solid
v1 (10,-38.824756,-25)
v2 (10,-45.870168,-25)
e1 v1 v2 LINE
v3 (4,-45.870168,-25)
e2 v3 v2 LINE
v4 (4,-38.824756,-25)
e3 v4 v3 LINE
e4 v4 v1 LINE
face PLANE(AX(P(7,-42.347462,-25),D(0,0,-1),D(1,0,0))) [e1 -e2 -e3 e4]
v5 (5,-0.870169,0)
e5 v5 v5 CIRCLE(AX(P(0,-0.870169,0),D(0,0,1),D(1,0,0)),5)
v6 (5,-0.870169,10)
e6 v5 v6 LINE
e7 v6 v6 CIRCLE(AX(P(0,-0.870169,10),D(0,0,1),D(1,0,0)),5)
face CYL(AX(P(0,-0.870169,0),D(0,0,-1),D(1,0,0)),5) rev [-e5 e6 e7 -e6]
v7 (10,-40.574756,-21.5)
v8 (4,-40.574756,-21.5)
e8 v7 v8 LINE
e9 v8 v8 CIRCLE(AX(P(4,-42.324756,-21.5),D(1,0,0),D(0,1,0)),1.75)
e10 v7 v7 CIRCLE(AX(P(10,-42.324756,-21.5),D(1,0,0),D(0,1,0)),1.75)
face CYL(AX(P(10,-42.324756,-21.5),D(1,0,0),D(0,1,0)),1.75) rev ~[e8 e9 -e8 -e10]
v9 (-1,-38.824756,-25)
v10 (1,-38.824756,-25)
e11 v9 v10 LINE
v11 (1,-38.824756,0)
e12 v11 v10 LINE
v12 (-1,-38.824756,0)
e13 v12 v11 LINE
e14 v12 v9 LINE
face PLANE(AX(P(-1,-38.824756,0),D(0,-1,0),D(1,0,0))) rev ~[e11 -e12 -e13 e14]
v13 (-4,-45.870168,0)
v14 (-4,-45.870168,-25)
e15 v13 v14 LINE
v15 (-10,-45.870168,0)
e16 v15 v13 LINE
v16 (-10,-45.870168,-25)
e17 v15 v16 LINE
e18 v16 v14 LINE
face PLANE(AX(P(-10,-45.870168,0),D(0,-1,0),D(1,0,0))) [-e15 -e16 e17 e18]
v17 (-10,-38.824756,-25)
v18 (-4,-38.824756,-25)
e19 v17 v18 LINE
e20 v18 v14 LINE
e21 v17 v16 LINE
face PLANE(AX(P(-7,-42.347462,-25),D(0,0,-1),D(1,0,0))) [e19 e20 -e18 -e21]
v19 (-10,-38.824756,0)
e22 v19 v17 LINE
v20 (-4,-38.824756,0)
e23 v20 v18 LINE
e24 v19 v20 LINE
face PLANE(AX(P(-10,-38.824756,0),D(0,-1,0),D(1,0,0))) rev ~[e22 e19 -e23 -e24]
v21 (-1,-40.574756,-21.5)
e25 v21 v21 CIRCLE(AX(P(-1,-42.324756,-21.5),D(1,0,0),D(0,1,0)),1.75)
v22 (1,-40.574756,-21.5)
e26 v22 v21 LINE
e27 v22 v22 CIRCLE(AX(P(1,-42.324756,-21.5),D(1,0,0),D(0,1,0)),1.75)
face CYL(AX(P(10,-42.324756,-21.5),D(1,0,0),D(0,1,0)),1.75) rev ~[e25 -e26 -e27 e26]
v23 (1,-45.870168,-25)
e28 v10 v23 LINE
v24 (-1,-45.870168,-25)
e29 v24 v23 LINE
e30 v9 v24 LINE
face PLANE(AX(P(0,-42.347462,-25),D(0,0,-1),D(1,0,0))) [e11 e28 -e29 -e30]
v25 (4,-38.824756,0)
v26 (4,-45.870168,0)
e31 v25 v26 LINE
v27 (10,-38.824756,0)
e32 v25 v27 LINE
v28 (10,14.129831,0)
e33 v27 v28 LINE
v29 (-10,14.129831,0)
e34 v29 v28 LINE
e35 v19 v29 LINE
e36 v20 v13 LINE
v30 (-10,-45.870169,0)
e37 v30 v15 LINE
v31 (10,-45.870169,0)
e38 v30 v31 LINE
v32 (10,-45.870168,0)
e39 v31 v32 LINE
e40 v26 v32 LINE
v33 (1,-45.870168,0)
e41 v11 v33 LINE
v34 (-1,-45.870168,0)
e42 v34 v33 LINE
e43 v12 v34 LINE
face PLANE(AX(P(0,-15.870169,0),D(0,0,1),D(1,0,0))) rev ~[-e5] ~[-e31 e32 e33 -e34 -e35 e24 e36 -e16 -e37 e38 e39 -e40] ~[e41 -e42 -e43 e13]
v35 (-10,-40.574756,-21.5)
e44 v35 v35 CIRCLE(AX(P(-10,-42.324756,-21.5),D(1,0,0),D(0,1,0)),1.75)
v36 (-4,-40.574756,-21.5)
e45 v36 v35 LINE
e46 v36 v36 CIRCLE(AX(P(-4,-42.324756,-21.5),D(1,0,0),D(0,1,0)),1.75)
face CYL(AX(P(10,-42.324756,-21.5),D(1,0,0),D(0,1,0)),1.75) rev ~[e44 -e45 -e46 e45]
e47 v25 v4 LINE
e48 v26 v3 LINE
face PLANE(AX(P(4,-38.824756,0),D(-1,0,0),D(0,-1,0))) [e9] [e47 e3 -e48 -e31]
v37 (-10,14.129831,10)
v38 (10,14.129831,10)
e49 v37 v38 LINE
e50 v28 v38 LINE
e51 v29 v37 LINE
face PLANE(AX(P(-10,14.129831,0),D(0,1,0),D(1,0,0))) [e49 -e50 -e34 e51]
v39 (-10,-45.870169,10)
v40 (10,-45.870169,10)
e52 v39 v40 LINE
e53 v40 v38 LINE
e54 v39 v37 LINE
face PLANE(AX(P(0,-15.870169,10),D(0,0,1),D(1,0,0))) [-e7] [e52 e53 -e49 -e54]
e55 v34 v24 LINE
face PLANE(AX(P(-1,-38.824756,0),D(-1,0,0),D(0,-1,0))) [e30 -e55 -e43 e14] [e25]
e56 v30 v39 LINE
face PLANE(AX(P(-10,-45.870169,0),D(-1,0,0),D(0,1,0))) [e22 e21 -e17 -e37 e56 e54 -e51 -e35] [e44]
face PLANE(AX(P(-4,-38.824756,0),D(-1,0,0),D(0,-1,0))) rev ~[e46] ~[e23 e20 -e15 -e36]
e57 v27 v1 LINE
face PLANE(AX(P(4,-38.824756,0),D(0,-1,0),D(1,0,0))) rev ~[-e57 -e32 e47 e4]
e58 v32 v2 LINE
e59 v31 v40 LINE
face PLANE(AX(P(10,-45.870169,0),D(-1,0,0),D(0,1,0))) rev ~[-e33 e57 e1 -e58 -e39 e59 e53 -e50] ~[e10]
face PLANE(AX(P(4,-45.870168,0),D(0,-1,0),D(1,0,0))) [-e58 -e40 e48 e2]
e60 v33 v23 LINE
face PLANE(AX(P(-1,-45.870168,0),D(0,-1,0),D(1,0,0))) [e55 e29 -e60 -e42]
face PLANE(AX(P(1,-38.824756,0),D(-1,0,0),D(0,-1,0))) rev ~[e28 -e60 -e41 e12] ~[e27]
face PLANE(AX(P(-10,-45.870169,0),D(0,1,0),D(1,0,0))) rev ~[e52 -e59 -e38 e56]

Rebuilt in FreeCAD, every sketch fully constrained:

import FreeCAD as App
import Part
import Sketcher
Q = App.Units.Quantity


def add_polygon(sketch, points):
    """Adds a closed chain of lines whose ends are joined by coincident constraints."""
    first, n = sketch.GeometryCount, len(points)
    for a, b in zip(points, points[1:] + points[:1]):
        sketch.addGeometry(Part.LineSegment(App.Vector(*a, 0), App.Vector(*b, 0)), False)
    for i in range(n):
        sketch.addConstraint(Sketcher.Constraint("Coincident", first + i, 2, first + (i + 1) % n, 1))

doc = App.newDocument("Part")
params = doc.addObject("Spreadsheet::Sheet", "Params")
for row, (alias, value) in enumerate([
    ("sketch1_diameter", "10 mm"),
    ("sketch1_width", "20 mm"),
    ("sketch1_height", "60 mm"),
    ("pad1_length", "10 mm"),
    ("sketch2_width", "2 mm"),
    ("sketch2_width2", "6 mm"),
    ("pad2_length", "25 mm"),
    ("sketch3_diameter", "3.5 mm"),
    ("pocket1_length", "25 mm"),
], start=1):
    params.set(f"A{row}", alias)
    params.set(f"B{row}", "=" + value)
    params.setAlias(f"B{row}", alias)

body = doc.addObject("PartDesign::Body", "Body")

sketch1 = body.newObject("Sketcher::SketchObject", "Sketch")
sketch1.AttachmentSupport = (doc.getObject("XY_Plane"), [""])
sketch1.MapMode = "FlatFace"
add_polygon(sketch1, [(-10, 14), (-10, -46), (10, -46), (10, 14)])
sketch1.addGeometry(Part.Circle(App.Vector(0, -1, 0), App.Vector(0, 0, 1), 5), False)
sketch1.addConstraint(Sketcher.Constraint("Vertical", 0))
sketch1.addConstraint(Sketcher.Constraint("Horizontal", 1))
sketch1.addConstraint(Sketcher.Constraint("Vertical", 2))
sketch1.addConstraint(Sketcher.Constraint("Horizontal", 3))
sketch1.addConstraint(Sketcher.Constraint("PointOnObject", 4, 3, -2))
sketch1.addConstraint(Sketcher.Constraint("Diameter", 4, Q("10 mm")))
sketch1.addConstraint(Sketcher.Constraint("DistanceX", 1, 1, 1, 2, Q("20 mm")))
sketch1.addConstraint(Sketcher.Constraint("DistanceY", 0, 2, 0, 1, Q("60 mm")))
sketch1.addConstraint(Sketcher.Constraint("DistanceX", 0, 2, -1, 1, Q("10 mm")))
sketch1.addConstraint(Sketcher.Constraint("DistanceY", 0, 2, 4, 3, Q("45 mm")))
sketch1.addConstraint(Sketcher.Constraint("DistanceY", 4, 3, -1, 1, Q("0.870169 mm")))
sketch1.setExpression("Constraints[9]", "Params.sketch1_diameter")
sketch1.setExpression("Constraints[10]", "Params.sketch1_width")
sketch1.setExpression("Constraints[11]", "Params.sketch1_height")
pad1 = body.newObject("PartDesign::Pad", "Pad")
pad1.Profile = sketch1
pad1.setExpression("Length", "Params.pad1_length")

sketch2 = body.newObject("Sketcher::SketchObject", "Sketch001")
sketch2.AttachmentSupport = (doc.getObject("XY_Plane"), [""])
sketch2.MapMode = "FlatFace"
add_polygon(sketch2, [(-1, -45.9), (-1, -38.8), (1, -38.8), (1, -45.9)])
add_polygon(sketch2, [(-10, -45.9), (-10, -38.8), (-4, -38.8), (-4, -45.9)])
add_polygon(sketch2, [(4, -45.9), (4, -38.8), (10, -38.8), (10, -45.9)])
sketch2.addConstraint(Sketcher.Constraint("Vertical", 0))
sketch2.addConstraint(Sketcher.Constraint("Horizontal", 1))
sketch2.addConstraint(Sketcher.Constraint("Vertical", 2))
sketch2.addConstraint(Sketcher.Constraint("Horizontal", 3))
sketch2.addConstraint(Sketcher.Constraint("Vertical", 4))
sketch2.addConstraint(Sketcher.Constraint("Horizontal", 5))
sketch2.addConstraint(Sketcher.Constraint("Vertical", 6))
sketch2.addConstraint(Sketcher.Constraint("Horizontal", 7))
sketch2.addConstraint(Sketcher.Constraint("Vertical", 8))
sketch2.addConstraint(Sketcher.Constraint("Horizontal", 9))
sketch2.addConstraint(Sketcher.Constraint("Vertical", 10))
sketch2.addConstraint(Sketcher.Constraint("Horizontal", 11))
sketch2.addConstraint(Sketcher.Constraint("Symmetric", 5, 2, 8, 2, -2))
sketch2.addConstraint(Sketcher.Constraint("Symmetric", 7, 2, 10, 2, -2))
sketch2.addConstraint(Sketcher.Constraint("Horizontal", 1, 2, 4, 2))
sketch2.addConstraint(Sketcher.Constraint("Horizontal", 3, 2, 6, 2))
sketch2.addConstraint(Sketcher.Constraint("DistanceX", 1, 1, 1, 2, Q("2 mm")))
sketch2.addConstraint(Sketcher.Constraint("DistanceX", 5, 1, 5, 2, Q("6 mm")))
sketch2.addConstraint(Sketcher.Constraint("DistanceX", 0, 2, -1, 1, Q("1 mm")))
sketch2.addConstraint(Sketcher.Constraint("DistanceX", 4, 2, -1, 1, Q("10 mm")))
sketch2.addConstraint(Sketcher.Constraint("DistanceY", 0, 1, 0, 2, Q("7.045413 mm")))
sketch2.addConstraint(Sketcher.Constraint("DistanceY", 2, 2, -1, 1, Q("45.870168 mm")))
sketch2.setExpression("Constraints[28]", "Params.sketch2_width")
sketch2.setExpression("Constraints[29]", "Params.sketch2_width2")
pad2 = body.newObject("PartDesign::Pad", "Pad001")
pad2.Profile = sketch2
pad2.setExpression("Length", "Params.pad2_length")
pad2.Reversed = True

sketch3 = body.newObject("Sketcher::SketchObject", "Sketch002")
sketch3.AttachmentSupport = (doc.getObject("YZ_Plane"), [""])
sketch3.MapMode = "FlatFace"
sketch3.AttachmentOffset = App.Placement(App.Vector(0, 0, 10), App.Rotation())
sketch3.addGeometry(Part.Circle(App.Vector(-42.3, -21.5, 0), App.Vector(0, 0, 1), 1.8), False)
sketch3.addConstraint(Sketcher.Constraint("Diameter", 0, Q("3.5 mm")))
sketch3.addConstraint(Sketcher.Constraint("DistanceY", 0, 3, -1, 1, Q("21.5 mm")))
sketch3.addConstraint(Sketcher.Constraint("DistanceX", 0, 3, -1, 1, Q("42.324756 mm")))
sketch3.setExpression("Constraints[0]", "Params.sketch3_diameter")
pocket1 = body.newObject("PartDesign::Pocket", "Pocket")
pocket1.Profile = sketch3
pocket1.setExpression("Length", "Params.pocket1_length")

doc.recompute()
